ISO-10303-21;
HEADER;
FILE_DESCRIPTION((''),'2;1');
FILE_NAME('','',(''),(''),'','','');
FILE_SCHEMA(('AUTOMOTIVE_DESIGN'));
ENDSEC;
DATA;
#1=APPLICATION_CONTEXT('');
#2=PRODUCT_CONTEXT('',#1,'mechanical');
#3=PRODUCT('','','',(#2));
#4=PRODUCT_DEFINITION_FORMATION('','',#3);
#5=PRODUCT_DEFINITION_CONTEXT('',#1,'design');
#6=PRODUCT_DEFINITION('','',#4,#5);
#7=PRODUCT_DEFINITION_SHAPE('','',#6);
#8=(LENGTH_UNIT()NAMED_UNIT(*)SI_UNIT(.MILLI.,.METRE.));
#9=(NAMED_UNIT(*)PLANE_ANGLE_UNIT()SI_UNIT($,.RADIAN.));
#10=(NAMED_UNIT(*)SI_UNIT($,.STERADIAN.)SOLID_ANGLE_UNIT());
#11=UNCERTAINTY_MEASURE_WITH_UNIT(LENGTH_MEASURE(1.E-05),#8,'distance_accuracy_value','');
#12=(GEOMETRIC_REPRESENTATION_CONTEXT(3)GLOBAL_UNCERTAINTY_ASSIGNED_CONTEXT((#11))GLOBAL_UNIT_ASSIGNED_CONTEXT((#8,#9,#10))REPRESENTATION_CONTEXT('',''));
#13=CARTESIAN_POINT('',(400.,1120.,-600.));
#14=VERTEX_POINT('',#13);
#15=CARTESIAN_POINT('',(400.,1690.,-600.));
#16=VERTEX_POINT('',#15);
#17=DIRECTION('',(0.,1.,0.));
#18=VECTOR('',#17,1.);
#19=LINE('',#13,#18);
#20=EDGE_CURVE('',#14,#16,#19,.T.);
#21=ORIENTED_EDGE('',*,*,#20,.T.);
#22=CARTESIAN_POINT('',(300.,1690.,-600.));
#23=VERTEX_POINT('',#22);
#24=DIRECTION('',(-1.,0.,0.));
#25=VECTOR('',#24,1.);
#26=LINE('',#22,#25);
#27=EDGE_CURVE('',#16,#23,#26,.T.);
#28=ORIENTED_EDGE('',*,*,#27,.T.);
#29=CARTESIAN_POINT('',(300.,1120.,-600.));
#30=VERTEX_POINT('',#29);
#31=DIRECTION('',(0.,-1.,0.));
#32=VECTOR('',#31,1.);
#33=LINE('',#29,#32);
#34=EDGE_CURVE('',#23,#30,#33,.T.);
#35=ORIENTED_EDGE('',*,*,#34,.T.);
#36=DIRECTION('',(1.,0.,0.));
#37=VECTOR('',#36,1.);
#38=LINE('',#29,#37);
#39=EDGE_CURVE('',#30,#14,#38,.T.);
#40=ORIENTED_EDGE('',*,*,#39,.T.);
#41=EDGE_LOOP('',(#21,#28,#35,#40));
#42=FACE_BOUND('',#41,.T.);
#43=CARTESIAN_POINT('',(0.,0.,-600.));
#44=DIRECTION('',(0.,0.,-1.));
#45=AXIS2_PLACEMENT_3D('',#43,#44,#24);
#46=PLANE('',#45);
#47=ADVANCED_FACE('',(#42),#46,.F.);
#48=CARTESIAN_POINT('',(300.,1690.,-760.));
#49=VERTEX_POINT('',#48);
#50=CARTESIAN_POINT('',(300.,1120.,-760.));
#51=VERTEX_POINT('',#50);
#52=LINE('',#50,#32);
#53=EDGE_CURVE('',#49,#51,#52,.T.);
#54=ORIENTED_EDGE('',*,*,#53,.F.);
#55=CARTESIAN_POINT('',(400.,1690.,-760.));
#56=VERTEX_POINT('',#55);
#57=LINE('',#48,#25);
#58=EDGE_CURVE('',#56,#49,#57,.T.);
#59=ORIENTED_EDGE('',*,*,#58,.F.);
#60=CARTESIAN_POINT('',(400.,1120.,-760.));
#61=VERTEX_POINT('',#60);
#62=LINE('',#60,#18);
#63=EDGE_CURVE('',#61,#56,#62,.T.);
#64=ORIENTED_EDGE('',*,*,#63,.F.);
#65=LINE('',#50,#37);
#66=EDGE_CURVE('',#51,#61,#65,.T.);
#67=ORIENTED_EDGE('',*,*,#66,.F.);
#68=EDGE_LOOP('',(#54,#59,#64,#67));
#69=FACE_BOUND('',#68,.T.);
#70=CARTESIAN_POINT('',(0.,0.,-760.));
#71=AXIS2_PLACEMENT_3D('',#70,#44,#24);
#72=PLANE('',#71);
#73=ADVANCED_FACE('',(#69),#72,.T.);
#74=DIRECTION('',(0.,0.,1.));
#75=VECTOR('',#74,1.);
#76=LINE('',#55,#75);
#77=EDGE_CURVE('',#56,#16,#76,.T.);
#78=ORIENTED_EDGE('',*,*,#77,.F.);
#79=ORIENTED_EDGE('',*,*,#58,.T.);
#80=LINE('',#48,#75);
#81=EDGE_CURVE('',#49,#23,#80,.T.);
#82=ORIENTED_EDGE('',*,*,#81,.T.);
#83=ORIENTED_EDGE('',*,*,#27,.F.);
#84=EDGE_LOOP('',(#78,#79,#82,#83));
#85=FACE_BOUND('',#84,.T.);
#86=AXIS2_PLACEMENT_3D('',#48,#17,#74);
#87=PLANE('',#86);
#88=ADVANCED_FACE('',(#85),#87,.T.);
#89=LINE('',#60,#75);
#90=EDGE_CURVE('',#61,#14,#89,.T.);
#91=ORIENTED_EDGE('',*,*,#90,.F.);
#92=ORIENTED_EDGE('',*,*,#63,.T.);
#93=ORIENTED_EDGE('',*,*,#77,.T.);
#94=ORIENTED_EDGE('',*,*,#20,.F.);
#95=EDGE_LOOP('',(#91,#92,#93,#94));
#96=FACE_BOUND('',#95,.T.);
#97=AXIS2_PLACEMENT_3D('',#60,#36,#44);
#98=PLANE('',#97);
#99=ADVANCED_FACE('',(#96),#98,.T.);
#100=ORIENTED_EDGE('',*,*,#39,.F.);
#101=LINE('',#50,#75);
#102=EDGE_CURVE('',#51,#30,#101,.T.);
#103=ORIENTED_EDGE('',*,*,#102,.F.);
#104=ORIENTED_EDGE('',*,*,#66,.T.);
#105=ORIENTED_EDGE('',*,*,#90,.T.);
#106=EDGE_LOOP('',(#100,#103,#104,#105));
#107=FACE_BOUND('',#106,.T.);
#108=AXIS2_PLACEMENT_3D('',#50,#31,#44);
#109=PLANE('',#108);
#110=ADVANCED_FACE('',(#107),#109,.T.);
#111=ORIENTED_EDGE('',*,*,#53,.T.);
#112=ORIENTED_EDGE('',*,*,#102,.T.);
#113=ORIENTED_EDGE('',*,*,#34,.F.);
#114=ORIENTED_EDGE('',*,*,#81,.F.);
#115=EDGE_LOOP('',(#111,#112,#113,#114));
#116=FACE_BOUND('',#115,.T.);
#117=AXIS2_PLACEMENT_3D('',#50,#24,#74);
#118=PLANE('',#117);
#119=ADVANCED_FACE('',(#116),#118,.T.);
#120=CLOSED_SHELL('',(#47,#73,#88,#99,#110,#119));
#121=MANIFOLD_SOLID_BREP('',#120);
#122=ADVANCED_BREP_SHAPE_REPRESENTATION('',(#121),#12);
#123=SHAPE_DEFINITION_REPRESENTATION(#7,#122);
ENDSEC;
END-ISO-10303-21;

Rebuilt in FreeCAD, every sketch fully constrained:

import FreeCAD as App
import Part
import Sketcher
Q = App.Units.Quantity


def add_polygon(sketch, points):
    """Adds a closed chain of lines whose ends are joined by coincident constraints."""
    first, n = sketch.GeometryCount, len(points)
    for a, b in zip(points, points[1:] + points[:1]):
        sketch.addGeometry(Part.LineSegment(App.Vector(*a, 0), App.Vector(*b, 0)), False)
    for i in range(n):
        sketch.addConstraint(Sketcher.Constraint("Coincident", first + i, 2, first + (i + 1) % n, 1))

doc = App.newDocument("Part")
body = doc.addObject("PartDesign::Body", "Body")

sketch1 = body.newObject("Sketcher::SketchObject", "Sketch")
sketch1.AttachmentSupport = (doc.getObject("XY_Plane"), [""])
sketch1.MapMode = "FlatFace"
sketch1.AttachmentOffset = App.Placement(App.Vector(0, 0, -600), App.Rotation())
add_polygon(sketch1, [(300, 1690), (300, 1120), (400, 1120), (400, 1690)])
sketch1.addConstraint([
    Sketcher.Constraint("Vertical", 0),
    Sketcher.Constraint("Horizontal", 1),
    Sketcher.Constraint("Vertical", 2),
    Sketcher.Constraint("Horizontal", 3),
    Sketcher.Constraint("DistanceX", 1, 1, 1, 2, Q("100 mm")),
    Sketcher.Constraint("DistanceY", 0, 2, 0, 1, Q("570 mm")),
    Sketcher.Constraint("DistanceX", -1, 1, 0, 2, Q("300 mm")),
    Sketcher.Constraint("DistanceY", -1, 1, 0, 2, Q("1120 mm")),
])
pad1 = body.newObject("PartDesign::Pad", "Pad")
pad1.Profile = sketch1
pad1.Length = 160
pad1.Reversed = True

doc.recompute()
